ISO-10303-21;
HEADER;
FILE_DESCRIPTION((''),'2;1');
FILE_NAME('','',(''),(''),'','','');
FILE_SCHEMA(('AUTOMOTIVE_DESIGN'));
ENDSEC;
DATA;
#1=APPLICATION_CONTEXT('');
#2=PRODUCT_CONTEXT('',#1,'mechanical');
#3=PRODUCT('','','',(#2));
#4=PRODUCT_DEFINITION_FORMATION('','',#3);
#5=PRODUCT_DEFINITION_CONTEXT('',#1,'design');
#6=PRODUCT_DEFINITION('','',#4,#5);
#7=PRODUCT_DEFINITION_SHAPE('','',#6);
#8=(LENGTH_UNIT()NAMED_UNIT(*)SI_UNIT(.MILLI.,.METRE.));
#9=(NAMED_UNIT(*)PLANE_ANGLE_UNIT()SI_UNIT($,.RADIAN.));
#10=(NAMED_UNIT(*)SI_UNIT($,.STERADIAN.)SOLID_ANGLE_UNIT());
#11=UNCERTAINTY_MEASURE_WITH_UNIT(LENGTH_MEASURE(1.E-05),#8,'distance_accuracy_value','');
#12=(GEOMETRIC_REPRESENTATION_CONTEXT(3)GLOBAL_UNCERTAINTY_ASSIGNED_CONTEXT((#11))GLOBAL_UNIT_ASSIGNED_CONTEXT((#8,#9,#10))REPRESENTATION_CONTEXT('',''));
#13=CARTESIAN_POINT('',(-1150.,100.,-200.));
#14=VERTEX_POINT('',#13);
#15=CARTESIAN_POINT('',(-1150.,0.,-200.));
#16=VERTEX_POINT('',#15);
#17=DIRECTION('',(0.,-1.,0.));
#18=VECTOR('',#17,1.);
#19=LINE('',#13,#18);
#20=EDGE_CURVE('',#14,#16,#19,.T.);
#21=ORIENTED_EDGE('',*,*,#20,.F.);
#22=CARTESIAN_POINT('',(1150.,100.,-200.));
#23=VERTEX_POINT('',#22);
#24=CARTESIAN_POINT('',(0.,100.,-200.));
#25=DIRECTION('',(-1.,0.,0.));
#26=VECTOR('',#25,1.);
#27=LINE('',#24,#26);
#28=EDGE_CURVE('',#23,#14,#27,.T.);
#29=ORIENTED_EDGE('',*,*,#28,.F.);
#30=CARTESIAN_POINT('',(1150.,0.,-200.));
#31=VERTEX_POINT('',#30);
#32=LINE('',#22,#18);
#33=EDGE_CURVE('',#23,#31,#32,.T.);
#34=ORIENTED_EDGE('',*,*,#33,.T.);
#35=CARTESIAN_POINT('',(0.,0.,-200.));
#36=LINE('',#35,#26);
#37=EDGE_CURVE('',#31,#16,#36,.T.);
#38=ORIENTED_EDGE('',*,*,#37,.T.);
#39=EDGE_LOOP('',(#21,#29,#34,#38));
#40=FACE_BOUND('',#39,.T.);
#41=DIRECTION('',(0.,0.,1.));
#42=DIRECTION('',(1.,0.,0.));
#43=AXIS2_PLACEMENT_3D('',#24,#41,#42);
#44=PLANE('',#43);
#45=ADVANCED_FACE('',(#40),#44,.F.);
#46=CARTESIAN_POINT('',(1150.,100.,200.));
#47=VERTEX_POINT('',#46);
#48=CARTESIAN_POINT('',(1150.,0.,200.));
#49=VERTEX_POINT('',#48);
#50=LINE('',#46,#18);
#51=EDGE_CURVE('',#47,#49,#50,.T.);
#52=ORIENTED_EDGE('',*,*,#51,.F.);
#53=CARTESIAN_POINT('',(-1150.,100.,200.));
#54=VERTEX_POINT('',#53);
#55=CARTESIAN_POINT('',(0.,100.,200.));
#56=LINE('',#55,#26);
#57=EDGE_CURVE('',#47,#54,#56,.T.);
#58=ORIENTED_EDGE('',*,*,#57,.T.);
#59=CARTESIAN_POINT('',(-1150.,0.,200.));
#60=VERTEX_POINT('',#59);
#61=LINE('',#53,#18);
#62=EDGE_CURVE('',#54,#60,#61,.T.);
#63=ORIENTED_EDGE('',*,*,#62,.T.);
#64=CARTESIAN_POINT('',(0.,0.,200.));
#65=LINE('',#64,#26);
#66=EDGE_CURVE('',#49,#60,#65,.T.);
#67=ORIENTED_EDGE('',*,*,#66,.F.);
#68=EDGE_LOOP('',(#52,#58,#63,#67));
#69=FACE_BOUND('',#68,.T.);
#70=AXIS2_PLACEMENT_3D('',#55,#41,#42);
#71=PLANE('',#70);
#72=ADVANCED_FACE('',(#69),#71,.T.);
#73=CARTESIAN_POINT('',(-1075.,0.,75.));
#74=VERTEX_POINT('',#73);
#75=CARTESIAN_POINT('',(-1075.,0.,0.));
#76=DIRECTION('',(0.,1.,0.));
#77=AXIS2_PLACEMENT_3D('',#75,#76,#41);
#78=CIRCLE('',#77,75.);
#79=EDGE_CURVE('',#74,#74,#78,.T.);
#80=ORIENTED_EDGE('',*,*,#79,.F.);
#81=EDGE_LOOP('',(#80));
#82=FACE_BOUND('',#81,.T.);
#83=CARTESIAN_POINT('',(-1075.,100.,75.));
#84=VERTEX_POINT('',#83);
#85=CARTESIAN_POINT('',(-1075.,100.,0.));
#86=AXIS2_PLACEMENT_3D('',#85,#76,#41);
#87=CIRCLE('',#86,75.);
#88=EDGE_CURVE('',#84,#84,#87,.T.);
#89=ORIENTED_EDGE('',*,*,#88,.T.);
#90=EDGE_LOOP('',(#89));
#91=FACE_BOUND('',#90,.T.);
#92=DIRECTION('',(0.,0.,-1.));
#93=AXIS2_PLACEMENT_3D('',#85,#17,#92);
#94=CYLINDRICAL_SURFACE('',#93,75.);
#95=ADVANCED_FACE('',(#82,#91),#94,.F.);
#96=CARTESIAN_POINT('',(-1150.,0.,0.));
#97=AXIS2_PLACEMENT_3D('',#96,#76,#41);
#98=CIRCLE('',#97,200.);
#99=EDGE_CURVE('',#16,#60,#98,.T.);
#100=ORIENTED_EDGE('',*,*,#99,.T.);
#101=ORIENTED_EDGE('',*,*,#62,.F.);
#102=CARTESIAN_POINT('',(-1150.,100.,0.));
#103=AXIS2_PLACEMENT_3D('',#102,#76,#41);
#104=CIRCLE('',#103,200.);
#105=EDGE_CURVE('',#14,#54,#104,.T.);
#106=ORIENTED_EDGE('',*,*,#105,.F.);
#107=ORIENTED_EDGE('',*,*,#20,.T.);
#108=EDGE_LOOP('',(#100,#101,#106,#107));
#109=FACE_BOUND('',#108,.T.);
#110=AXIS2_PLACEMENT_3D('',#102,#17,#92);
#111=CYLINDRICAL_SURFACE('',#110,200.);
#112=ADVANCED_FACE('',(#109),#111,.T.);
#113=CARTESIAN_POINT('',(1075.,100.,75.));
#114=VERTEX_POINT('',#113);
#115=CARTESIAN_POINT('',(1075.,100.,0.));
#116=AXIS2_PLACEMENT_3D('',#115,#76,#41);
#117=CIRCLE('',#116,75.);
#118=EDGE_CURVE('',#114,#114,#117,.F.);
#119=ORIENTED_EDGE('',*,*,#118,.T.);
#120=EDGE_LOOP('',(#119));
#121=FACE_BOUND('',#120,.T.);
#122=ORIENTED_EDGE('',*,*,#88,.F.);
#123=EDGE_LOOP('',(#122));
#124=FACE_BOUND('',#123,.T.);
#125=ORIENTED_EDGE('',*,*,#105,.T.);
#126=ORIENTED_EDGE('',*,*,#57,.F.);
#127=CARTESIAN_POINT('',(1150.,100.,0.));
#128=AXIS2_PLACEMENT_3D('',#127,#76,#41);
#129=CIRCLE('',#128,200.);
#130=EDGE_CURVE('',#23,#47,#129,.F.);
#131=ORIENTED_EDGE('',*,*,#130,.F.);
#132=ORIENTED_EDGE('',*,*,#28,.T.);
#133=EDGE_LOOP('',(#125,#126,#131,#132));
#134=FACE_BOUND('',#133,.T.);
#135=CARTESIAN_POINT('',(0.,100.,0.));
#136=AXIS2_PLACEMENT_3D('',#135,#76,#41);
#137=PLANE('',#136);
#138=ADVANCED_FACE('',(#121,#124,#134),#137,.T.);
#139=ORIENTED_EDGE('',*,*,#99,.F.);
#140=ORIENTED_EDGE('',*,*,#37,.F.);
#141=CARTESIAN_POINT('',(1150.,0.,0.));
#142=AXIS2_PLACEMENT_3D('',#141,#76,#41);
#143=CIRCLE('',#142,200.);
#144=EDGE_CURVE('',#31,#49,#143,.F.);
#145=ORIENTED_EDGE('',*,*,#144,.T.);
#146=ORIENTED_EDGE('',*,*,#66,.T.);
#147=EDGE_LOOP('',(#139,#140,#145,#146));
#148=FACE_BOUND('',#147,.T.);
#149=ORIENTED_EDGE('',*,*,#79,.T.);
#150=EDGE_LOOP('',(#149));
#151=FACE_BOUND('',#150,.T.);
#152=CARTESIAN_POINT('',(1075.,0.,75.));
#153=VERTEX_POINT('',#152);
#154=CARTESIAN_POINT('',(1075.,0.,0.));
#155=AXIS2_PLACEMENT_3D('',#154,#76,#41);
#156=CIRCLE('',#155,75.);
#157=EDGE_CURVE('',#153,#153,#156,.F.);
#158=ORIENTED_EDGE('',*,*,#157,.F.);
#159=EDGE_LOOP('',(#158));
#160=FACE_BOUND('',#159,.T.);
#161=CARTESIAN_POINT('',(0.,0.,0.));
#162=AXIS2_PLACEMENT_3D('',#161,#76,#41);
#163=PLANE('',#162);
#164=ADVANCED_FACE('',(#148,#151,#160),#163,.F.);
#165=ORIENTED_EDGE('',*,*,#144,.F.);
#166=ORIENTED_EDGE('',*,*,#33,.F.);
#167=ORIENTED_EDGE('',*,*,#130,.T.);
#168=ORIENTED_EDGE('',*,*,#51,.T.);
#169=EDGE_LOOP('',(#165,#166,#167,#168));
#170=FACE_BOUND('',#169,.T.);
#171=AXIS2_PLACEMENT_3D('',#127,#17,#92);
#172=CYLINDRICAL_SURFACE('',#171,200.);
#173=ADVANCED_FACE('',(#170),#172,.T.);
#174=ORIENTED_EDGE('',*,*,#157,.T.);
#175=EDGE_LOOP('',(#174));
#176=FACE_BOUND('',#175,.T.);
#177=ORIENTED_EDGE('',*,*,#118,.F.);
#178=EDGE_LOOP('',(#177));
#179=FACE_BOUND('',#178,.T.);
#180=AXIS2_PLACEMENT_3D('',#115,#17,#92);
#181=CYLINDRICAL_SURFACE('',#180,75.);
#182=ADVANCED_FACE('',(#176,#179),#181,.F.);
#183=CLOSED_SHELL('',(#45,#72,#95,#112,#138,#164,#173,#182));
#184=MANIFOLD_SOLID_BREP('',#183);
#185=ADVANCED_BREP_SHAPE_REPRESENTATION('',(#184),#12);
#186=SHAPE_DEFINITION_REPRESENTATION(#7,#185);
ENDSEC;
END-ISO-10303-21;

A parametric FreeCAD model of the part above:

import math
import FreeCAD as App
import Part
import Sketcher
from FreeCAD import Vector

doc = App.newDocument("Part")
params = doc.addObject("Spreadsheet::Sheet", "Params")
for row, (alias, value) in enumerate([
    ("sketch1_diameter", "150 mm"),
    ("sketch1_radius", "200 mm"),
    ("sketch1_width", "2300 mm"),
    ("pad1_length", "100 mm"),
], start=1):
    params.set(f"A{row}", alias)
    params.set(f"B{row}", "=" + value)
    params.setAlias(f"B{row}", alias)

body = doc.addObject("PartDesign::Body", "Body")

sketch1 = body.newObject("Sketcher::SketchObject", "Sketch")
sketch1.AttachmentSupport = (doc.getObject("XZ_Plane"), [""])
sketch1.MapMode = "FlatFace"
sketch1.addGeometry(Part.LineSegment(Vector(-1150, 200, 0), Vector(1150, 200, 0)), False)
sketch1.addGeometry(Part.ArcOfCircle(Part.Circle(Vector(1150, 0, 0), Vector(0, 0, 1), 200), math.radians(-90), math.radians(90)), False)
sketch1.addGeometry(Part.LineSegment(Vector(1150, -200, 0), Vector(-1150, -200, 0)), False)
sketch1.addGeometry(Part.ArcOfCircle(Part.Circle(Vector(-1150, 0, 0), Vector(0, 0, 1), 200), math.radians(90), math.radians(270)), False)
sketch1.addGeometry(Part.Circle(Vector(1075, 0, 0), Vector(0, 0, 1), 75), False)
sketch1.addGeometry(Part.Circle(Vector(-1075, 0, 0), Vector(0, 0, 1), 75), False)
sketch1.addConstraint(Sketcher.Constraint("Tangent", 0, 2, 1, 2))
sketch1.addConstraint(Sketcher.Constraint("Tangent", 1, 1, 2, 1))
sketch1.addConstraint(Sketcher.Constraint("Tangent", 2, 2, 3, 2))
sketch1.addConstraint(Sketcher.Constraint("Tangent", 3, 1, 0, 1))
sketch1.addConstraint(Sketcher.Constraint("Horizontal", 0))
sketch1.addConstraint(Sketcher.Constraint("Horizontal", 2))
sketch1.addConstraint(Sketcher.Constraint("Equal", 4, 5))
sketch1.addConstraint(Sketcher.Constraint("Symmetric", 1, 3, 3, 3, -1, 1))
sketch1.addConstraint(Sketcher.Constraint("Symmetric", 4, 3, 5, 3, -1, 1))
sketch1.addConstraint(Sketcher.Constraint("PointOnObject", 4, 3, -1))
sketch1.addConstraint(Sketcher.Constraint("Diameter", 4, 150.0))
sketch1.addConstraint(Sketcher.Constraint("Radius", 1, 200.0))
sketch1.addConstraint(Sketcher.Constraint("DistanceX", 0, 1, 0, 2, 2300.0))
sketch1.addConstraint(Sketcher.Constraint("DistanceX", -1, 1, 4, 3, 1075.0))
sketch1.setExpression("Constraints[10]", "Params.sketch1_diameter")
sketch1.setExpression("Constraints[11]", "Params.sketch1_radius")
sketch1.setExpression("Constraints[12]", "Params.sketch1_width")
pad1 = body.newObject("PartDesign::Pad", "Pad")
pad1.Profile = sketch1
pad1.setExpression("Length", "Params.pad1_length")
pad1.Reversed = True

doc.recompute()
